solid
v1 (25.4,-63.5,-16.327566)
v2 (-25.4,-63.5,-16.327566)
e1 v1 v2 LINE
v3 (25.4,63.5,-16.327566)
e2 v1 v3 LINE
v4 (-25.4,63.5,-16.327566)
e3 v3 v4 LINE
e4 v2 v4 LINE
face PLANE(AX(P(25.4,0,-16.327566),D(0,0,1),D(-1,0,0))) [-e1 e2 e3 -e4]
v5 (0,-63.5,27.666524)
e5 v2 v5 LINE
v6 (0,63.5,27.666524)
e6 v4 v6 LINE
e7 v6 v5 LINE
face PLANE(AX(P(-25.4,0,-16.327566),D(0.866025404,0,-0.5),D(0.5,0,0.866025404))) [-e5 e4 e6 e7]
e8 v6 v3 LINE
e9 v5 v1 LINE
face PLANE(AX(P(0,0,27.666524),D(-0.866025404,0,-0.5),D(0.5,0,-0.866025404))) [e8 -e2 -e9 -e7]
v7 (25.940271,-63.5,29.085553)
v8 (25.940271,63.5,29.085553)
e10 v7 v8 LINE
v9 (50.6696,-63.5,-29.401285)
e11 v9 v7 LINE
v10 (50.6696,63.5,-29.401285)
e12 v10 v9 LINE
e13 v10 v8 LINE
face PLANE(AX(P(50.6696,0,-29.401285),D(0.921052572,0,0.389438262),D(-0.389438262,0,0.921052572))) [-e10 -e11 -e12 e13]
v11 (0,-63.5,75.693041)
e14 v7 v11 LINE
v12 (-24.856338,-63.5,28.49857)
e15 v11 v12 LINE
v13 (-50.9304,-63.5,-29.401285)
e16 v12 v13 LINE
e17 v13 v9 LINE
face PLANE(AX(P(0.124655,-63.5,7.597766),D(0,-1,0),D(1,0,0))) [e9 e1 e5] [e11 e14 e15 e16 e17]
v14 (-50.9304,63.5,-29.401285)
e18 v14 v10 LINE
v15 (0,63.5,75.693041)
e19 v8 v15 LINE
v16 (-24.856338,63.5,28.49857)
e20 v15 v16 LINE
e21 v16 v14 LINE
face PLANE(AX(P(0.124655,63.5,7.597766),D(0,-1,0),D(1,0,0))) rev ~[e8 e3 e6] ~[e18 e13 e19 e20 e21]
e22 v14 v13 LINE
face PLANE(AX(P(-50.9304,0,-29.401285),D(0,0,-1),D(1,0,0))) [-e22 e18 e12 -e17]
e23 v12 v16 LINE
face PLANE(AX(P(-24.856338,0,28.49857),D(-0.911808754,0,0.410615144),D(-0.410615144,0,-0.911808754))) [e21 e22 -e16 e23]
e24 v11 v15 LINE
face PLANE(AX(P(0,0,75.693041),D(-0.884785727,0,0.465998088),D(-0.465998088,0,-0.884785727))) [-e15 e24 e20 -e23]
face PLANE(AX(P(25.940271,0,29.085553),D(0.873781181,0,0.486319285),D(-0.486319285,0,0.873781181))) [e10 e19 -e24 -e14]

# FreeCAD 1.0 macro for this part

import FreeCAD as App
import Part
import Sketcher
Q = App.Units.Quantity


def add_polygon(sketch, points):
    """Adds a closed chain of lines whose ends are joined by coincident constraints."""
    first, n = sketch.GeometryCount, len(points)
    for a, b in zip(points, points[1:] + points[:1]):
        sketch.addGeometry(Part.LineSegment(App.Vector(*a, 0), App.Vector(*b, 0)), False)
    for i in range(n):
        sketch.addConstraint(Sketcher.Constraint("Coincident", first + i, 2, first + (i + 1) % n, 1))

doc = App.newDocument("Part")
body = doc.addObject("PartDesign::Body", "Body")

sketch1 = body.newObject("Sketcher::SketchObject", "Sketch")
sketch1.AttachmentSupport = (doc.getObject("XZ_Plane"), [""])
sketch1.MapMode = "FlatFace"
add_polygon(sketch1, [(-25, 28), (-51, -29), (51, -29), (26, 29), (0, 76)])
add_polygon(sketch1, [(-25, -16), (0, 28), (25, -16)])
sketch1.addConstraint(Sketcher.Constraint("Horizontal", 1))
sketch1.addConstraint(Sketcher.Constraint("Horizontal", 7))
sketch1.addConstraint(Sketcher.Constraint("PointOnObject", 3, 2, -2))
sketch1.addConstraint(Sketcher.Constraint("PointOnObject", 5, 2, -2))
sketch1.addConstraint(Sketcher.Constraint("Equal", 0, 2))
sketch1.addConstraint(Sketcher.Constraint("Equal", 3, 4))
sketch1.addConstraint(Sketcher.Constraint("Equal", 5, 6))
sketch1.addConstraint(Sketcher.Constraint("DistanceX", 1, 1, 1, 2, Q("4 in")))
sketch1.addConstraint(Sketcher.Constraint("DistanceX", 7, 2, 7, 1, Q("2 in")))
sketch1.addConstraint(Sketcher.Constraint("Distance", 5, Q("2 in")))
sketch1.addConstraint(Sketcher.Constraint("Distance", 0, Q("2.5 in")))
sketch1.addConstraint(Sketcher.Constraint("Distance", 3, Q("2.1 in")))
sketch1.addConstraint(Sketcher.Constraint("DistanceX", 0, 2, -1, 1, 50.9304))
sketch1.addConstraint(Sketcher.Constraint("DistanceX", -1, 1, 2, 2, 25.940271))
sketch1.addConstraint(Sketcher.Constraint("DistanceY", -1, 1, 3, 2, 75.693041))
sketch1.addConstraint(Sketcher.Constraint("DistanceY", 5, 2, 2, 2, 1.419029))
pad1 = body.newObject("PartDesign::Pad", "Pad")
pad1.Profile = sketch1
pad1.Length = Q("5 in")
pad1.Midplane = True

doc.recompute()
